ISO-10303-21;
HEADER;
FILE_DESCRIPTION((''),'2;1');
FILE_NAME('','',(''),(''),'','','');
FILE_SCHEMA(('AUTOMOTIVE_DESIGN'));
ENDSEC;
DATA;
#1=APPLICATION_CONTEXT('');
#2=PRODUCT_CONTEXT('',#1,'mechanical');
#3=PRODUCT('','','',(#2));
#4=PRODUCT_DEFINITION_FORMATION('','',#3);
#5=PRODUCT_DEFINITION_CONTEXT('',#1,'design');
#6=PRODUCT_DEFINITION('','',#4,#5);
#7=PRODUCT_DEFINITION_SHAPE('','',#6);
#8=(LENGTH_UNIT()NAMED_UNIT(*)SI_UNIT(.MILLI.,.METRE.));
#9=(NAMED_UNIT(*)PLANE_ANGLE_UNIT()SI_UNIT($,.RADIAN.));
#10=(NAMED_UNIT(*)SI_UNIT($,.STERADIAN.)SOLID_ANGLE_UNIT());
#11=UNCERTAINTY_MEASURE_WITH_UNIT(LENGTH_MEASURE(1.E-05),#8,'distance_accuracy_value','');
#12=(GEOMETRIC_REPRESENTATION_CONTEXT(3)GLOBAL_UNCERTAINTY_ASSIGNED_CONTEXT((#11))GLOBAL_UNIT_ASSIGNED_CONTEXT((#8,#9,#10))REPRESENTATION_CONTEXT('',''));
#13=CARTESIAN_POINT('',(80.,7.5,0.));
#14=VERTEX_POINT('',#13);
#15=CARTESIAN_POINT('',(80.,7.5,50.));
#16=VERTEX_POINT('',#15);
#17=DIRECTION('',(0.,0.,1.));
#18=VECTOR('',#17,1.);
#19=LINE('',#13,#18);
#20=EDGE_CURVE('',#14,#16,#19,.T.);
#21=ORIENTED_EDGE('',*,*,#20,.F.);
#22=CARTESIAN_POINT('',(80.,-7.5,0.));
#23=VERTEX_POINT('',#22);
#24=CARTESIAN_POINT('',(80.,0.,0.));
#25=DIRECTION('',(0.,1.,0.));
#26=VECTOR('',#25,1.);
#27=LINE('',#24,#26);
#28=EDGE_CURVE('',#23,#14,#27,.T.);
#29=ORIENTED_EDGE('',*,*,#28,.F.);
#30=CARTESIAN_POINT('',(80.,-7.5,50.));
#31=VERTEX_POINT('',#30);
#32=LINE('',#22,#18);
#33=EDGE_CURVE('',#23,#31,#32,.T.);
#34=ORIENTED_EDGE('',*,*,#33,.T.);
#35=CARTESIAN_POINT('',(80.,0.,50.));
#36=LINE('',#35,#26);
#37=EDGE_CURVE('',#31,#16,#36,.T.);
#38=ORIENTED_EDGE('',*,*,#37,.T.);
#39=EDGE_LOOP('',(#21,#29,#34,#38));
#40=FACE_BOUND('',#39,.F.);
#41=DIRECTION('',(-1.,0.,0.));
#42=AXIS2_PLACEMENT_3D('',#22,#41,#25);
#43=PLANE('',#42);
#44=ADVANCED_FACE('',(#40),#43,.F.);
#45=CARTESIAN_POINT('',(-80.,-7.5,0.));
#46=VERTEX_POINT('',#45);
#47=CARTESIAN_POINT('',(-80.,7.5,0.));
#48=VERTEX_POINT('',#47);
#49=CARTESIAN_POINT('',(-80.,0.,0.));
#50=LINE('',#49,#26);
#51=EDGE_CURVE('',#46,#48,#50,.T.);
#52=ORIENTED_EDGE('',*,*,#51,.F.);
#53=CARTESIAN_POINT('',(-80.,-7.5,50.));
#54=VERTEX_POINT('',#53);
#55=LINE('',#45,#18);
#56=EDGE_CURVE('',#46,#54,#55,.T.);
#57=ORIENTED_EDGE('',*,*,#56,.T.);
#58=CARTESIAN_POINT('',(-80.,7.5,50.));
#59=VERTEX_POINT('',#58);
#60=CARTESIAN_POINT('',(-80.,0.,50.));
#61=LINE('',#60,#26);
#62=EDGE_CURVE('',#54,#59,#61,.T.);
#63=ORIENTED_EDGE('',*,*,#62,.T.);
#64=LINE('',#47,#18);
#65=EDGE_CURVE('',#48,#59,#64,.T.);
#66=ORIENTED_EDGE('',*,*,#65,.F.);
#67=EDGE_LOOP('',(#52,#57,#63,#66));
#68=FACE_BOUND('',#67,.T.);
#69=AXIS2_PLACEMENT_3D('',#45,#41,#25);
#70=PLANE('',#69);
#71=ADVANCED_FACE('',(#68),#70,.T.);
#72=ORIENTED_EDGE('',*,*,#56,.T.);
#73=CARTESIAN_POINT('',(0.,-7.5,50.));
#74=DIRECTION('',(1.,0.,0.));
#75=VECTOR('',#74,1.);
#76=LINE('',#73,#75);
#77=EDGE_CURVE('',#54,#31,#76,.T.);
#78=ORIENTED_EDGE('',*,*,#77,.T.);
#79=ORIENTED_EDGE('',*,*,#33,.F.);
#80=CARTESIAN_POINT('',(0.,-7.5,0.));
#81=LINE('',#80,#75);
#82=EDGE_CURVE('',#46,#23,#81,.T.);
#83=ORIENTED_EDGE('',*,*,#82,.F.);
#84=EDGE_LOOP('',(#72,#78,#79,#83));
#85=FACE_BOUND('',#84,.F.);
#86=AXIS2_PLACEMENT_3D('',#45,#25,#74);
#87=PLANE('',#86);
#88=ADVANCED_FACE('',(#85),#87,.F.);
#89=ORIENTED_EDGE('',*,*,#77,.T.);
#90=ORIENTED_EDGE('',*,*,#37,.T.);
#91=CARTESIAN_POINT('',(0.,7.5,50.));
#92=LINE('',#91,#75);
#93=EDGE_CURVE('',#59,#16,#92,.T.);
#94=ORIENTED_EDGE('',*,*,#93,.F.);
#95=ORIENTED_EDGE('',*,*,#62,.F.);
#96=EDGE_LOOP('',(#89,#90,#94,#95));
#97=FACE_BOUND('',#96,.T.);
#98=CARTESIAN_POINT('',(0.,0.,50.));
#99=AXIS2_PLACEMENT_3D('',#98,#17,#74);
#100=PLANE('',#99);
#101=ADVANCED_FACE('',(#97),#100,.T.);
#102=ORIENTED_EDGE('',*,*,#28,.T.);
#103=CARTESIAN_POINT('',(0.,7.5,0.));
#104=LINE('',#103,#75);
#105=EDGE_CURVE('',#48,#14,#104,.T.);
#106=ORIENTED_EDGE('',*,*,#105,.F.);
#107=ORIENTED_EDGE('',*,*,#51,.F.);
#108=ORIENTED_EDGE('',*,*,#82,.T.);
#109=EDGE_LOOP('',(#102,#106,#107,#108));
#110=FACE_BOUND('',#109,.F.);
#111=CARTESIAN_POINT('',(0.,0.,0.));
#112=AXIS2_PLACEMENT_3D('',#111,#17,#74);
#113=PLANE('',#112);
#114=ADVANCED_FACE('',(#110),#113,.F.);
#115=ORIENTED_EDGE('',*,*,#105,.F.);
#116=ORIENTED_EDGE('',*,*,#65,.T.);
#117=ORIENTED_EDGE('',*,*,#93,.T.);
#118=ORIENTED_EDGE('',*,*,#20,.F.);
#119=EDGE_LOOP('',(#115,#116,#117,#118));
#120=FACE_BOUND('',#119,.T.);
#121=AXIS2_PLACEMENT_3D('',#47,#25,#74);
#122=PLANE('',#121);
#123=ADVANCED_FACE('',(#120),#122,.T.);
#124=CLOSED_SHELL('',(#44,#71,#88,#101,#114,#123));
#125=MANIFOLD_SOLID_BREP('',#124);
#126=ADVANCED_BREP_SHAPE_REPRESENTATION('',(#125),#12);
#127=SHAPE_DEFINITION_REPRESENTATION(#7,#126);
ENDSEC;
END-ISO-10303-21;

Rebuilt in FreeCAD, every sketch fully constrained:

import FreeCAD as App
import Part
import Sketcher

V = App.Vector
Q = App.Units.Quantity


def add_polygon(sketch, points):
    """Adds a closed chain of lines whose ends are joined by coincident constraints."""
    first, n = sketch.GeometryCount, len(points)
    for a, b in zip(points, points[1:] + points[:1]):
        sketch.addGeometry(Part.LineSegment(App.Vector(*a, 0), App.Vector(*b, 0)), False)
    for i in range(n):
        sketch.addConstraint(Sketcher.Constraint("Coincident", first + i, 2, first + (i + 1) % n, 1))

doc = App.newDocument("Part")
body = doc.addObject("PartDesign::Body", "Body")

# Sketch on XY plane
sketch1 = doc.addObject("Sketcher::SketchObject", "Sketch")
body.addObject(sketch1)
sketch1.AttachmentSupport = (doc.XY_Plane, [""])
sketch1.MapMode = "FlatFace"
add_polygon(sketch1, [(-80, 7.5), (-80, -7.5), (80, -7.5), (80, 7.5)])  # lines 0-3
sketch1.addConstraint(Sketcher.Constraint("Vertical", 0))
sketch1.addConstraint(Sketcher.Constraint("Horizontal", 1))
sketch1.addConstraint(Sketcher.Constraint("Vertical", 2))
sketch1.addConstraint(Sketcher.Constraint("Horizontal", 3))
sketch1.addConstraint(Sketcher.Constraint("Symmetric", 0, 2, 2, 2, -1, 1))
sketch1.addConstraint(Sketcher.Constraint("DistanceX", 1, 1, 1, 2, Q("160 mm")))
sketch1.addConstraint(Sketcher.Constraint("DistanceY", 0, 2, 0, 1, Q("15 mm")))
pad1 = doc.addObject("PartDesign::Pad", "Pad")
body.addObject(pad1)
pad1.Profile = sketch1
pad1.Length = 50

doc.recompute()
